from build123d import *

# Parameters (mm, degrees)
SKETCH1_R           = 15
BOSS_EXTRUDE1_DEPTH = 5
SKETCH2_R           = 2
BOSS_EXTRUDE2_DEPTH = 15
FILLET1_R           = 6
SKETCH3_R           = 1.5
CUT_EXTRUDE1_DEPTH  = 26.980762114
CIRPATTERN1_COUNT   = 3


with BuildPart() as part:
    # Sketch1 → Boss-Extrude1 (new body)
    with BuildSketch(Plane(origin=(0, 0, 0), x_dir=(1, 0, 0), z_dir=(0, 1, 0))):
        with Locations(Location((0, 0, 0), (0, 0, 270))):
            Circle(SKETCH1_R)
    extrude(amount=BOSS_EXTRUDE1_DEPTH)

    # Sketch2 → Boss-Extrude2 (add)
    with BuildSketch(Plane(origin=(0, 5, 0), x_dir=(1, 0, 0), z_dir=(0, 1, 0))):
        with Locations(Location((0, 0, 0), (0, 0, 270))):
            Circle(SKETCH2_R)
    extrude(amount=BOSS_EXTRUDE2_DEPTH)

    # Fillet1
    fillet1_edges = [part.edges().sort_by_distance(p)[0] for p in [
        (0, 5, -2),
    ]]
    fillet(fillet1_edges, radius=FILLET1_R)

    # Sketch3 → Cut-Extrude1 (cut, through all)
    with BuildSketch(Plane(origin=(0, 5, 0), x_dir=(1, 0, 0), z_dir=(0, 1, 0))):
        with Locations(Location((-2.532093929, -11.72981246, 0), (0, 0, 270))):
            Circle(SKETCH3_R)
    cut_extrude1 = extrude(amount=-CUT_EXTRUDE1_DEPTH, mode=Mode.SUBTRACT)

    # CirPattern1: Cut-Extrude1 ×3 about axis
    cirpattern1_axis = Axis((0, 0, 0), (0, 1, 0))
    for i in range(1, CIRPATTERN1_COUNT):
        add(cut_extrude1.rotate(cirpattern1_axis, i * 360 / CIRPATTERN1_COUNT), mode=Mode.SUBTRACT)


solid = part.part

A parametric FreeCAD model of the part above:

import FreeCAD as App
import Part
import Sketcher

V = App.Vector


def edges_at(feature, points):
    """Names of the edges that pass closest to the given points."""
    edges = feature.Shape.Edges
    near = lambda p: min(range(len(edges)), key=lambda i: edges[i].distToShape(Part.Vertex(*p))[0])
    return sorted({f"Edge{near(p) + 1}" for p in points})

doc = App.newDocument("Part")
body = doc.addObject("PartDesign::Body", "Body")

sketch1 = body.newObject("Sketcher::SketchObject", "Sketch")
sketch1.AttachmentSupport = (doc.getObject("XZ_Plane"), [""])
sketch1.MapMode = "FlatFace"
sketch1.addGeometry(Part.Circle(V(0, 0, 0), V(0, 0, 1), 15), False)
sketch1.addConstraint([
    Sketcher.Constraint("Coincident", 0, 3, -1, 1),
    Sketcher.Constraint("Diameter", 0, 30.0),
])
pad1 = body.newObject("PartDesign::Pad", "Pad")
pad1.Profile = sketch1
pad1.Length = 5
pad1.Reversed = True

sketch2 = body.newObject("Sketcher::SketchObject", "Sketch001")
sketch2.AttachmentSupport = (doc.getObject("XZ_Plane"), [""])
sketch2.MapMode = "FlatFace"
sketch2.AttachmentOffset = App.Placement(V(0, 0, -5), App.Rotation())
sketch2.addGeometry(Part.Circle(V(0, 0, 0), V(0, 0, 1), 2), False)
sketch2.addConstraint([
    Sketcher.Constraint("Coincident", 0, 3, -1, 1),
    Sketcher.Constraint("Diameter", 0, 4.0),
])
pad2 = body.newObject("PartDesign::Pad", "Pad001")
pad2.Profile = sketch2
pad2.Length = 15
pad2.Reversed = True
doc.recompute()

fillet = body.newObject("PartDesign::Fillet", "Fillet")
fillet.Base = (pad2, edges_at(pad2, [(0, 5, -2)]))
fillet.Radius = 6

sketch3 = body.newObject("Sketcher::SketchObject", "Sketch002")
sketch3.AttachmentSupport = (doc.getObject("XZ_Plane"), [""])
sketch3.MapMode = "FlatFace"
sketch3.AttachmentOffset = App.Placement(V(0, 0, -5), App.Rotation())
sketch3.addGeometry(Part.Circle(V(-2.532094, 11.729812, 0), V(0, 0, 1), 1.5), False)
sketch3.addConstraint([
    Sketcher.Constraint("Diameter", 0, 3.0),
    Sketcher.Constraint("DistanceX", 0, 3, -1, 1, 2.532094),
    Sketcher.Constraint("DistanceY", -1, 1, 0, 3, 11.729812),
])
pocket1 = body.newObject("PartDesign::Pocket", "Pocket")
pocket1.Profile = sketch3
pocket1.Type = "ThroughAll"
pocket1.Reversed = True
doc.recompute()

polarpattern = body.newObject("PartDesign::PolarPattern", "PolarPattern")
polarpattern.Originals = [pocket1]
polarpattern.Axis = (doc.getObject("Y_Axis"), [""])
polarpattern.Angle = 360
polarpattern.Occurrences = 3
body.Tip = polarpattern

doc.recompute()
